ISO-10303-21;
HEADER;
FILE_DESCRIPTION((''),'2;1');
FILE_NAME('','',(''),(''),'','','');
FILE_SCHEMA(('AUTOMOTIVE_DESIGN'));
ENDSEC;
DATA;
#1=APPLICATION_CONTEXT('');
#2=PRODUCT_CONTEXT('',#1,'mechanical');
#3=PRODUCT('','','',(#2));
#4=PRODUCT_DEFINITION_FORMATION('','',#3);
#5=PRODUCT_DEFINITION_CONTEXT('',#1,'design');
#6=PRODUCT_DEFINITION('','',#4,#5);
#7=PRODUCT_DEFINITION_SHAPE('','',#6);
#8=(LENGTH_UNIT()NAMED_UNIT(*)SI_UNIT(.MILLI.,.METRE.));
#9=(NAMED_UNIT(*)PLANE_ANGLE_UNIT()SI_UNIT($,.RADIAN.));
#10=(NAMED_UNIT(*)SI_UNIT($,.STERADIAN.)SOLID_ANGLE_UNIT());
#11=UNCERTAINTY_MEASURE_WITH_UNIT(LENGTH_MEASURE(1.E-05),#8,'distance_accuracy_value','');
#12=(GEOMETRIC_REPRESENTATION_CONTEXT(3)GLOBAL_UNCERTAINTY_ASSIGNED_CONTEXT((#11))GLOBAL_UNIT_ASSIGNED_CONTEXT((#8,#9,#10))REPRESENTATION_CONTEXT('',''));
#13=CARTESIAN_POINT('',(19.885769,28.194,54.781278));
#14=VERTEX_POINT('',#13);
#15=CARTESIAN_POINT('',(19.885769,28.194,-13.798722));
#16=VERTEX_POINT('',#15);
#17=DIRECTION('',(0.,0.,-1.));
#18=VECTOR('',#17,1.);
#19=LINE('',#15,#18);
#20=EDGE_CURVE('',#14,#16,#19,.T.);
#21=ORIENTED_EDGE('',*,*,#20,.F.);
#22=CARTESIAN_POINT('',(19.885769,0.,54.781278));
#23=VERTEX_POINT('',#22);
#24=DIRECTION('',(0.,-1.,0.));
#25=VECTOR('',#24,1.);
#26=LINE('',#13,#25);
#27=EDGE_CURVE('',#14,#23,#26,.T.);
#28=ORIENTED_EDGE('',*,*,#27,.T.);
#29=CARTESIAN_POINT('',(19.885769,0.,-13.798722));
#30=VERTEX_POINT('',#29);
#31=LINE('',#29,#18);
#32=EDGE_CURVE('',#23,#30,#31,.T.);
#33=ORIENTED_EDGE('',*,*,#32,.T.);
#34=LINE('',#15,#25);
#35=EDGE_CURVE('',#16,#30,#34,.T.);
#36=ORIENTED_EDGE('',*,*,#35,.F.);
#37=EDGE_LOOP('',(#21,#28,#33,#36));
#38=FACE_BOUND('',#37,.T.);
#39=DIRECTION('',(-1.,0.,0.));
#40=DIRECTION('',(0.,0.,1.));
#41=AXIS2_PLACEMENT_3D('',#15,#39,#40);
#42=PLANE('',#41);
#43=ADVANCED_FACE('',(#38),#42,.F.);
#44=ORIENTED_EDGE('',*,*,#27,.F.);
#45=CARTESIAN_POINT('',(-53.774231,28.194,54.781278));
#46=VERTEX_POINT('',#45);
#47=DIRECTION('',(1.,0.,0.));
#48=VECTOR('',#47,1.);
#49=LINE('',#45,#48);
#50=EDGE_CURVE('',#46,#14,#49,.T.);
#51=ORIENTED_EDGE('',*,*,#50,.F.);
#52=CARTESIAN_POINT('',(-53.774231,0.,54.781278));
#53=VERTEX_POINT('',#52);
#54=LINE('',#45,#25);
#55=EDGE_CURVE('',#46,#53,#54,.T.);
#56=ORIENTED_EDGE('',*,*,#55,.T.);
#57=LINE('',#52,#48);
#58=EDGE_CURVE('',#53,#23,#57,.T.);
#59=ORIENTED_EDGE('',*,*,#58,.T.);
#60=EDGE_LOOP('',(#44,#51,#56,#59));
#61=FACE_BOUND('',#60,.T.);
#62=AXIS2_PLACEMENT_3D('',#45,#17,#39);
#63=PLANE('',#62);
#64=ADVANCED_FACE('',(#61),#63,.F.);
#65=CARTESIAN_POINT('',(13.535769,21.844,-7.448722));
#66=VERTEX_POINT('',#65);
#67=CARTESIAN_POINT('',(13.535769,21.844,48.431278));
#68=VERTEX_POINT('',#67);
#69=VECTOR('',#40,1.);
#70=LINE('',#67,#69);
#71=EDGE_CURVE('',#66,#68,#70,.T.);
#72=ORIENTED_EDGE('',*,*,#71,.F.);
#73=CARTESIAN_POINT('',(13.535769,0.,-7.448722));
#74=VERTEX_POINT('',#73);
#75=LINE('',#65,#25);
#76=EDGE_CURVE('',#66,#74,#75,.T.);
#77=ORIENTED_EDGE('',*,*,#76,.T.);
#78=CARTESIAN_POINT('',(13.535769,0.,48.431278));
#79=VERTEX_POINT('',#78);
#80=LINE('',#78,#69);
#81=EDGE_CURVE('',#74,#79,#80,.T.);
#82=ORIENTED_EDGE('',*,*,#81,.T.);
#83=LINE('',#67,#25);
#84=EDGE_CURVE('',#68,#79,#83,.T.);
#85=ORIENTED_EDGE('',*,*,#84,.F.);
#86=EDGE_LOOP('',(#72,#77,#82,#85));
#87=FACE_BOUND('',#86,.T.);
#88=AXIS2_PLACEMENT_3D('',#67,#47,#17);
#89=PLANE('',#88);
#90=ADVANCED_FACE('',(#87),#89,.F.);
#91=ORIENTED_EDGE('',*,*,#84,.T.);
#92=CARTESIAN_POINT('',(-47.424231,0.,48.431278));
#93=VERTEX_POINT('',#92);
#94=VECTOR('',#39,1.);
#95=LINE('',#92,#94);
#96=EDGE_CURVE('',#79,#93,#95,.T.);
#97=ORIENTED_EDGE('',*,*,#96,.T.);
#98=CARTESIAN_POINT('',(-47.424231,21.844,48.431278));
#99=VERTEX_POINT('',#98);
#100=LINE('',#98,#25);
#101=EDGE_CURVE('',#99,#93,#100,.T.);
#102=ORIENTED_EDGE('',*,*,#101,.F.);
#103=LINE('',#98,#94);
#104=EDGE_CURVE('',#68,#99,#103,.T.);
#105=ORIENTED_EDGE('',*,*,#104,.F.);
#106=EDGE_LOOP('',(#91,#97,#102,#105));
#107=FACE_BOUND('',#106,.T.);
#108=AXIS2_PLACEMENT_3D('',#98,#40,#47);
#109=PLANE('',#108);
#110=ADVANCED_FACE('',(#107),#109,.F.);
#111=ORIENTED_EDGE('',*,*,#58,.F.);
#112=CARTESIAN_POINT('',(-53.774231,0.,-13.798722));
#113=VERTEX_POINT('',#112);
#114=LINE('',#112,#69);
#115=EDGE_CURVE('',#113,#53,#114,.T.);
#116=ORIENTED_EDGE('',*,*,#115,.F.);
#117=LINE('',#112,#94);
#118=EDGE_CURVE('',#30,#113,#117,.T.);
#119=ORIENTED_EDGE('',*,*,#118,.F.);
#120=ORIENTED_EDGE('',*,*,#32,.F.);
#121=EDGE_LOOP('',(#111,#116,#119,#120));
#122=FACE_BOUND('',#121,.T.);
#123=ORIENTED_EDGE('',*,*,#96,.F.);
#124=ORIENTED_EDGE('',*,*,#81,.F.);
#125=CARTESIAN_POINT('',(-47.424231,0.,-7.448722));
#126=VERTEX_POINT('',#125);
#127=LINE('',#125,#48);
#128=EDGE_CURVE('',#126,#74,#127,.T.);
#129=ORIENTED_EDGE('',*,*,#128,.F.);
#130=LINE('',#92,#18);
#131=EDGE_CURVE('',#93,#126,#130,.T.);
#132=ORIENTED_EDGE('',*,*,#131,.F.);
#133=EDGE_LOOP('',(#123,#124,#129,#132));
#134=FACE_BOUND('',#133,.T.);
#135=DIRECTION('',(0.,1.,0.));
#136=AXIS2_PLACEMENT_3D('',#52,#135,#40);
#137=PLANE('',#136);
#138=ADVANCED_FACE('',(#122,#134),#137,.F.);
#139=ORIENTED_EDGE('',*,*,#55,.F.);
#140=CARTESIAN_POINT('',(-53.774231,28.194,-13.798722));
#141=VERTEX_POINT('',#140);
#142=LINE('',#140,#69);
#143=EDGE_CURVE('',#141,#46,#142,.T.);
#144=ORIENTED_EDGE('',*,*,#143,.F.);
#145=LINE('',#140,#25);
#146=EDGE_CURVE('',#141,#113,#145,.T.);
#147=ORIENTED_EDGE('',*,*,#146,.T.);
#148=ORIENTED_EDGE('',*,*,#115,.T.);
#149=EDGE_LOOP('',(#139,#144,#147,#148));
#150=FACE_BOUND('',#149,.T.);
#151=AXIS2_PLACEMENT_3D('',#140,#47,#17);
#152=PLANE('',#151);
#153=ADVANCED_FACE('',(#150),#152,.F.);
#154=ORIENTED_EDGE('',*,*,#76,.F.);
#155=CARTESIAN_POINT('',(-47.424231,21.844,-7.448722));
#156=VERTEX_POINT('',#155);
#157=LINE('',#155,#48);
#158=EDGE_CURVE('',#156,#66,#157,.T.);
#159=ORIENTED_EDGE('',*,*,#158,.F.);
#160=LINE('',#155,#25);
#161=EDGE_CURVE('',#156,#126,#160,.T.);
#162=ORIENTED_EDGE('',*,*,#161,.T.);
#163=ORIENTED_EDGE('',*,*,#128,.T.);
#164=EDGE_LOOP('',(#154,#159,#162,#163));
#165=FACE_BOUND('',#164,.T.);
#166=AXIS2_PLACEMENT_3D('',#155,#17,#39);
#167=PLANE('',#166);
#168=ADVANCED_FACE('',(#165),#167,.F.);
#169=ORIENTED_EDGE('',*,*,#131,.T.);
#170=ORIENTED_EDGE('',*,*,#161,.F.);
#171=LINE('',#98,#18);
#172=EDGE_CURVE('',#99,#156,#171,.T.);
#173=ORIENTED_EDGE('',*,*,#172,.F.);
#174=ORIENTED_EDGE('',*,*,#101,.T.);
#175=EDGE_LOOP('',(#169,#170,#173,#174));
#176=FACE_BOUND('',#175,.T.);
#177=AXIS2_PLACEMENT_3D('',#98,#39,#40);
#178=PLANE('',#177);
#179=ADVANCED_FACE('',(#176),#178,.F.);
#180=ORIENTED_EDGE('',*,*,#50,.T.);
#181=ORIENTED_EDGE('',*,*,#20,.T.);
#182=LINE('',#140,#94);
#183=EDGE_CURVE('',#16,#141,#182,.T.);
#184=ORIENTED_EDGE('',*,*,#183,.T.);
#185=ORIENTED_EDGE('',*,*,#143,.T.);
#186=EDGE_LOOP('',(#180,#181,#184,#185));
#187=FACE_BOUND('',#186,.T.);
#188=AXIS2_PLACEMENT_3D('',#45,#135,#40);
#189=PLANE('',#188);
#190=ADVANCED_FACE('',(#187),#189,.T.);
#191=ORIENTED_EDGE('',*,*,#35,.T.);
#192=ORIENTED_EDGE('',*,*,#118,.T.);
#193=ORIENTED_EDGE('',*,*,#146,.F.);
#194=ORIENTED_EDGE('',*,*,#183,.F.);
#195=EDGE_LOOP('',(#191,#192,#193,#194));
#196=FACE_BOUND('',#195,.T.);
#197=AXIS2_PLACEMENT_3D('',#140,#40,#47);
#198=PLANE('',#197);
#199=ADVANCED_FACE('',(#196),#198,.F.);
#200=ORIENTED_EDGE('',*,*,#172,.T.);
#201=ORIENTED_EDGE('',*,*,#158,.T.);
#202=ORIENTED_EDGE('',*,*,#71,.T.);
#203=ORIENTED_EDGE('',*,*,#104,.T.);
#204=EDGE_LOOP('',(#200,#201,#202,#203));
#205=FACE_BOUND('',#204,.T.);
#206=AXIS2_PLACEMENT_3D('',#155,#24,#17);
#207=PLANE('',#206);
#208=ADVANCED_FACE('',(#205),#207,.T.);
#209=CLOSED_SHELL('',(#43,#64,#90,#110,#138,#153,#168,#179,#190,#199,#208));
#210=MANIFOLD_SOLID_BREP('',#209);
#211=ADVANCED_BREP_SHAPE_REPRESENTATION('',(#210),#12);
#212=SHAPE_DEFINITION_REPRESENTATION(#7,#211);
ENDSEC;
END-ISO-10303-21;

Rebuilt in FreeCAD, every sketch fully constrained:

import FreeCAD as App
import Part
import Sketcher

V = App.Vector
Q = App.Units.Quantity


def add_polygon(sketch, points):
    """Adds a closed chain of lines whose ends are joined by coincident constraints."""
    first, n = sketch.GeometryCount, len(points)
    for a, b in zip(points, points[1:] + points[:1]):
        sketch.addGeometry(Part.LineSegment(App.Vector(*a, 0), App.Vector(*b, 0)), False)
    for i in range(n):
        sketch.addConstraint(Sketcher.Constraint("Coincident", first + i, 2, first + (i + 1) % n, 1))

doc = App.newDocument("Part")
params = doc.addObject("Spreadsheet::Sheet", "Params")
for row, (alias, value) in enumerate([
    ("sketch1_width", "2.9 in"),
    ("sketch1_height", "2.7 in"),
    ("pad1_length", "1.11 in"),
    ("sketch2_width", "2.4 in"),
    ("sketch2_height", "2.2 in"),
    ("pocket1_length", "0.86 in"),
], start=1):
    params.set(f"A{row}", alias)
    params.set(f"B{row}", "=" + value)
    params.setAlias(f"B{row}", alias)

body = doc.addObject("PartDesign::Body", "Body")

sketch1 = body.newObject("Sketcher::SketchObject", "Sketch")
sketch1.AttachmentSupport = (doc.getObject("XZ_Plane"), [""])
sketch1.MapMode = "FlatFace"
add_polygon(sketch1, [(-53.774231, -13.798722), (-53.774231, 54.781278), (19.885769, 54.781278), (19.885769, -13.798722)])
sketch1.addConstraint(Sketcher.Constraint("Vertical", 0))
sketch1.addConstraint(Sketcher.Constraint("Horizontal", 1))
sketch1.addConstraint(Sketcher.Constraint("Vertical", 2))
sketch1.addConstraint(Sketcher.Constraint("Horizontal", 3))
sketch1.addConstraint(Sketcher.Constraint("DistanceX", 1, 1, 1, 2, Q("2.9 in")))
sketch1.addConstraint(Sketcher.Constraint("DistanceY", 0, 1, 0, 2, Q("2.7 in")))
sketch1.addConstraint(Sketcher.Constraint("DistanceX", 0, 2, -1, 1, Q("53.774231 mm")))
sketch1.addConstraint(Sketcher.Constraint("DistanceY", -1, 1, 0, 2, Q("54.781278 mm")))
sketch1.setExpression("Constraints[8]", "Params.sketch1_width")
sketch1.setExpression("Constraints[9]", "Params.sketch1_height")
pad1 = body.newObject("PartDesign::Pad", "Pad")
pad1.Profile = sketch1
pad1.setExpression("Length", "Params.pad1_length")
pad1.Reversed = True

sketch2 = body.newObject("Sketcher::SketchObject", "Sketch001")
sketch2.AttachmentSupport = (doc.getObject("XZ_Plane"), [""])
sketch2.MapMode = "FlatFace"
add_polygon(sketch2, [(-47.424231, 48.431278), (-47.424231, -7.448722), (13.535769, -7.448722), (13.535769, 48.431278)])
sketch2.addConstraint(Sketcher.Constraint("Vertical", 0))
sketch2.addConstraint(Sketcher.Constraint("Horizontal", 1))
sketch2.addConstraint(Sketcher.Constraint("Vertical", 2))
sketch2.addConstraint(Sketcher.Constraint("Horizontal", 3))
sketch2.addConstraint(Sketcher.Constraint("DistanceX", 1, 1, 1, 2, Q("2.4 in")))
sketch2.addConstraint(Sketcher.Constraint("DistanceY", 0, 2, 0, 1, Q("2.2 in")))
sketch2.addConstraint(Sketcher.Constraint("DistanceX", 0, 2, -1, 1, Q("47.424231 mm")))
sketch2.addConstraint(Sketcher.Constraint("DistanceY", 0, 2, -1, 1, Q("7.448722 mm")))
sketch2.setExpression("Constraints[8]", "Params.sketch2_width")
sketch2.setExpression("Constraints[9]", "Params.sketch2_height")
pocket1 = body.newObject("PartDesign::Pocket", "Pocket")
pocket1.Profile = sketch2
pocket1.setExpression("Length", "Params.pocket1_length")

doc.recompute()
